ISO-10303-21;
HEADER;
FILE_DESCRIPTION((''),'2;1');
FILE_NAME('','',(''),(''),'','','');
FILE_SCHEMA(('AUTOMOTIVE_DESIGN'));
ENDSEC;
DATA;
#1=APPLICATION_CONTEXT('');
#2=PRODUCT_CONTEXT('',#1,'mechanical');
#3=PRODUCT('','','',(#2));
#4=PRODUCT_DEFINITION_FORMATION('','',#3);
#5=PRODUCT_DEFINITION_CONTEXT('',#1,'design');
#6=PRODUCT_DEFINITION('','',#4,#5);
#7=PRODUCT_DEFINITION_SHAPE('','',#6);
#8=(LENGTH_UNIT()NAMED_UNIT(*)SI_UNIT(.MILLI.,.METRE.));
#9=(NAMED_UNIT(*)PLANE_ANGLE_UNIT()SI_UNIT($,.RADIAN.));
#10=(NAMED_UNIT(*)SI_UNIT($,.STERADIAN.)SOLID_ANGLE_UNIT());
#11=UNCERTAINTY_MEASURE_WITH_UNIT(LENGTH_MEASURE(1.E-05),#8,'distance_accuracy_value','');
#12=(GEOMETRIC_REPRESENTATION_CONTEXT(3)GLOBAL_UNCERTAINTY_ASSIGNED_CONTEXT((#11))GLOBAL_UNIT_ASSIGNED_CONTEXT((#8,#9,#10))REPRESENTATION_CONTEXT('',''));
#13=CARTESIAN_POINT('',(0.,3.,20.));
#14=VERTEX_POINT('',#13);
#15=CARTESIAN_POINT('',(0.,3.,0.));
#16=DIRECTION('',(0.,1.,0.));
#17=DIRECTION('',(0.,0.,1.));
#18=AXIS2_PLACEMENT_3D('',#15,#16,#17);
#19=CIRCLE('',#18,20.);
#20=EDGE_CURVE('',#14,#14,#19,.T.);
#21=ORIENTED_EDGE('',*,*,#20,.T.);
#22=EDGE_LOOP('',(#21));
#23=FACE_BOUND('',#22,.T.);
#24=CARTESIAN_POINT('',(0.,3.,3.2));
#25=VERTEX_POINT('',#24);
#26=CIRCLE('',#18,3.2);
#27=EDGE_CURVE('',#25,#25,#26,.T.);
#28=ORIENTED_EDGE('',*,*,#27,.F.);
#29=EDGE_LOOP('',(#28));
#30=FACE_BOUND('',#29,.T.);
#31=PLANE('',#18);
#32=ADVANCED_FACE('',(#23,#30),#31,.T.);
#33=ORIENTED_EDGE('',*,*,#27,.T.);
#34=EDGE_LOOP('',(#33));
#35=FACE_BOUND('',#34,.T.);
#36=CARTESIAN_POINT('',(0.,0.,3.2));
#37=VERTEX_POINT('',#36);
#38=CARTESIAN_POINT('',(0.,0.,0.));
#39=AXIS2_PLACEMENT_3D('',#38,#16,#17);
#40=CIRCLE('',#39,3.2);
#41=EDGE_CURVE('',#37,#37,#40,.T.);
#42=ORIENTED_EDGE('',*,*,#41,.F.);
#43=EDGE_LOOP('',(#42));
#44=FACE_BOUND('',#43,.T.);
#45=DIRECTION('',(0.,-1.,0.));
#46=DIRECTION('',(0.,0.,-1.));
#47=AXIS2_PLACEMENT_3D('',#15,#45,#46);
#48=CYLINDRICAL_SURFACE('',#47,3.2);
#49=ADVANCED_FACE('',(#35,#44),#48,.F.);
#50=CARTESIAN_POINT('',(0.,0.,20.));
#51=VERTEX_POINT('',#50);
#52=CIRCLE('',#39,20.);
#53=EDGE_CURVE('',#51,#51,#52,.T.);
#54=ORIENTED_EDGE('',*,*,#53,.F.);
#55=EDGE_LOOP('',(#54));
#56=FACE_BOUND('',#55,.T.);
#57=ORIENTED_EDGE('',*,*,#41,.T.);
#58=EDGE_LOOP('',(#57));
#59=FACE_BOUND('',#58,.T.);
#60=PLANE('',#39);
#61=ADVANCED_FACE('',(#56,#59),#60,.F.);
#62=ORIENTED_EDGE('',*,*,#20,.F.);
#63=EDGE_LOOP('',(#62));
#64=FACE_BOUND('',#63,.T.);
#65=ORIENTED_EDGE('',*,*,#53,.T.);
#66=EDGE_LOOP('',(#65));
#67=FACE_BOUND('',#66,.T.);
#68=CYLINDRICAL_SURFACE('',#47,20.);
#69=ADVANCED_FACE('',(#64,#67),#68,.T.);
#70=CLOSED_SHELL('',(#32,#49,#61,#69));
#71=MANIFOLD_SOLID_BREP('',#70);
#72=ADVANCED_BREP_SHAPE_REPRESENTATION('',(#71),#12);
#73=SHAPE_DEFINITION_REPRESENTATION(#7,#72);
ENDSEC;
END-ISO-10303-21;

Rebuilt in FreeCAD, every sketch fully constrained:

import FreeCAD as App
import Part
import Sketcher
Q = App.Units.Quantity

doc = App.newDocument("Part")
body = doc.addObject("PartDesign::Body", "Body")

# Sketch on XZ plane
sketch1 = body.newObject("Sketcher::SketchObject", "Sketch")
sketch1.AttachmentSupport = (doc.getObject("XZ_Plane"), [""])
sketch1.MapMode = "FlatFace"
sketch1.addGeometry([
    Part.Circle(App.Vector(0, 0, 0), App.Vector(0, 0, 1), 20),
    Part.Circle(App.Vector(0, 0, 0), App.Vector(0, 0, 1), 3.2),
], False)
sketch1.addConstraint([
    Sketcher.Constraint("Coincident", 0, 3, -1, 1),
    Sketcher.Constraint("Coincident", 1, 3, -1, 1),
    Sketcher.Constraint("Diameter", 0, Q("40 mm")),
    Sketcher.Constraint("Diameter", 1, Q("6.4 mm")),
])
pad1 = body.newObject("PartDesign::Pad", "Pad")
pad1.Profile = sketch1
pad1.Length = 3
pad1.Reversed = True

doc.recompute()
